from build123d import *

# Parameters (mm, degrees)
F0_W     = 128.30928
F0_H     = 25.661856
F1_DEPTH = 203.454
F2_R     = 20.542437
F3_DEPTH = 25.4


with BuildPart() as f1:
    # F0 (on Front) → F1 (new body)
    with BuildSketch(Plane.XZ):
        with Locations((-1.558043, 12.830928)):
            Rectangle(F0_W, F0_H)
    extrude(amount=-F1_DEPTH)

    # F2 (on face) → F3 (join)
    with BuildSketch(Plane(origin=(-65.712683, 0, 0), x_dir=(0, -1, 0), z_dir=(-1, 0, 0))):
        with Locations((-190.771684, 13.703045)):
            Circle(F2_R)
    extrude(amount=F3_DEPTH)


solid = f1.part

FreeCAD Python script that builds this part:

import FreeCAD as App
import Part
import Sketcher
from FreeCAD import Vector
Q = App.Units.Quantity


def add_polygon(sketch, points):
    """Adds a closed chain of lines whose ends are joined by coincident constraints."""
    first, n = sketch.GeometryCount, len(points)
    for a, b in zip(points, points[1:] + points[:1]):
        sketch.addGeometry(Part.LineSegment(App.Vector(*a, 0), App.Vector(*b, 0)), False)
    for i in range(n):
        sketch.addConstraint(Sketcher.Constraint("Coincident", first + i, 2, first + (i + 1) % n, 1))

doc = App.newDocument("Part")
body = doc.addObject("PartDesign::Body", "Body")

sketch1 = body.newObject("Sketcher::SketchObject", "Sketch")
sketch1.AttachmentSupport = (doc.getObject("XZ_Plane"), [""])
sketch1.MapMode = "FlatFace"
add_polygon(sketch1, [(-66, 26), (-66, 0), (63, 0), (63, 26)])
sketch1.addConstraint(Sketcher.Constraint("Vertical", 0))
sketch1.addConstraint(Sketcher.Constraint("Horizontal", 1))
sketch1.addConstraint(Sketcher.Constraint("Vertical", 2))
sketch1.addConstraint(Sketcher.Constraint("Horizontal", 3))
sketch1.addConstraint(Sketcher.Constraint("PointOnObject", 0, 2, -1))
sketch1.addConstraint(Sketcher.Constraint("DistanceX", 1, 1, 1, 2, 128.30928))
sketch1.addConstraint(Sketcher.Constraint("DistanceY", 0, 2, 0, 1, 25.661856))
sketch1.addConstraint(Sketcher.Constraint("DistanceX", 0, 2, -1, 1, 65.712683))
pad1 = body.newObject("PartDesign::Pad", "Pad")
pad1.Profile = sketch1
pad1.Length = Q("8.01 in")
pad1.Reversed = True

sketch2 = body.newObject("Sketcher::SketchObject", "Sketch001")
sketch2.AttachmentSupport = (doc.getObject("YZ_Plane"), [""])
sketch2.MapMode = "FlatFace"
sketch2.AttachmentOffset = App.Placement(Vector(0, 0, -65.712683), App.Rotation())
sketch2.addGeometry(Part.Circle(Vector(191, 14, 0), Vector(0, 0, 1), 21), False)
sketch2.addConstraint(Sketcher.Constraint("Diameter", 0, 41.084874))
sketch2.addConstraint(Sketcher.Constraint("DistanceX", -1, 1, 0, 3, 190.771684))
sketch2.addConstraint(Sketcher.Constraint("DistanceY", -1, 1, 0, 3, 13.703045))
pad2 = body.newObject("PartDesign::Pad", "Pad001")
pad2.Profile = sketch2
pad2.Length = Q("1 in")
pad2.Reversed = True

doc.recompute()
